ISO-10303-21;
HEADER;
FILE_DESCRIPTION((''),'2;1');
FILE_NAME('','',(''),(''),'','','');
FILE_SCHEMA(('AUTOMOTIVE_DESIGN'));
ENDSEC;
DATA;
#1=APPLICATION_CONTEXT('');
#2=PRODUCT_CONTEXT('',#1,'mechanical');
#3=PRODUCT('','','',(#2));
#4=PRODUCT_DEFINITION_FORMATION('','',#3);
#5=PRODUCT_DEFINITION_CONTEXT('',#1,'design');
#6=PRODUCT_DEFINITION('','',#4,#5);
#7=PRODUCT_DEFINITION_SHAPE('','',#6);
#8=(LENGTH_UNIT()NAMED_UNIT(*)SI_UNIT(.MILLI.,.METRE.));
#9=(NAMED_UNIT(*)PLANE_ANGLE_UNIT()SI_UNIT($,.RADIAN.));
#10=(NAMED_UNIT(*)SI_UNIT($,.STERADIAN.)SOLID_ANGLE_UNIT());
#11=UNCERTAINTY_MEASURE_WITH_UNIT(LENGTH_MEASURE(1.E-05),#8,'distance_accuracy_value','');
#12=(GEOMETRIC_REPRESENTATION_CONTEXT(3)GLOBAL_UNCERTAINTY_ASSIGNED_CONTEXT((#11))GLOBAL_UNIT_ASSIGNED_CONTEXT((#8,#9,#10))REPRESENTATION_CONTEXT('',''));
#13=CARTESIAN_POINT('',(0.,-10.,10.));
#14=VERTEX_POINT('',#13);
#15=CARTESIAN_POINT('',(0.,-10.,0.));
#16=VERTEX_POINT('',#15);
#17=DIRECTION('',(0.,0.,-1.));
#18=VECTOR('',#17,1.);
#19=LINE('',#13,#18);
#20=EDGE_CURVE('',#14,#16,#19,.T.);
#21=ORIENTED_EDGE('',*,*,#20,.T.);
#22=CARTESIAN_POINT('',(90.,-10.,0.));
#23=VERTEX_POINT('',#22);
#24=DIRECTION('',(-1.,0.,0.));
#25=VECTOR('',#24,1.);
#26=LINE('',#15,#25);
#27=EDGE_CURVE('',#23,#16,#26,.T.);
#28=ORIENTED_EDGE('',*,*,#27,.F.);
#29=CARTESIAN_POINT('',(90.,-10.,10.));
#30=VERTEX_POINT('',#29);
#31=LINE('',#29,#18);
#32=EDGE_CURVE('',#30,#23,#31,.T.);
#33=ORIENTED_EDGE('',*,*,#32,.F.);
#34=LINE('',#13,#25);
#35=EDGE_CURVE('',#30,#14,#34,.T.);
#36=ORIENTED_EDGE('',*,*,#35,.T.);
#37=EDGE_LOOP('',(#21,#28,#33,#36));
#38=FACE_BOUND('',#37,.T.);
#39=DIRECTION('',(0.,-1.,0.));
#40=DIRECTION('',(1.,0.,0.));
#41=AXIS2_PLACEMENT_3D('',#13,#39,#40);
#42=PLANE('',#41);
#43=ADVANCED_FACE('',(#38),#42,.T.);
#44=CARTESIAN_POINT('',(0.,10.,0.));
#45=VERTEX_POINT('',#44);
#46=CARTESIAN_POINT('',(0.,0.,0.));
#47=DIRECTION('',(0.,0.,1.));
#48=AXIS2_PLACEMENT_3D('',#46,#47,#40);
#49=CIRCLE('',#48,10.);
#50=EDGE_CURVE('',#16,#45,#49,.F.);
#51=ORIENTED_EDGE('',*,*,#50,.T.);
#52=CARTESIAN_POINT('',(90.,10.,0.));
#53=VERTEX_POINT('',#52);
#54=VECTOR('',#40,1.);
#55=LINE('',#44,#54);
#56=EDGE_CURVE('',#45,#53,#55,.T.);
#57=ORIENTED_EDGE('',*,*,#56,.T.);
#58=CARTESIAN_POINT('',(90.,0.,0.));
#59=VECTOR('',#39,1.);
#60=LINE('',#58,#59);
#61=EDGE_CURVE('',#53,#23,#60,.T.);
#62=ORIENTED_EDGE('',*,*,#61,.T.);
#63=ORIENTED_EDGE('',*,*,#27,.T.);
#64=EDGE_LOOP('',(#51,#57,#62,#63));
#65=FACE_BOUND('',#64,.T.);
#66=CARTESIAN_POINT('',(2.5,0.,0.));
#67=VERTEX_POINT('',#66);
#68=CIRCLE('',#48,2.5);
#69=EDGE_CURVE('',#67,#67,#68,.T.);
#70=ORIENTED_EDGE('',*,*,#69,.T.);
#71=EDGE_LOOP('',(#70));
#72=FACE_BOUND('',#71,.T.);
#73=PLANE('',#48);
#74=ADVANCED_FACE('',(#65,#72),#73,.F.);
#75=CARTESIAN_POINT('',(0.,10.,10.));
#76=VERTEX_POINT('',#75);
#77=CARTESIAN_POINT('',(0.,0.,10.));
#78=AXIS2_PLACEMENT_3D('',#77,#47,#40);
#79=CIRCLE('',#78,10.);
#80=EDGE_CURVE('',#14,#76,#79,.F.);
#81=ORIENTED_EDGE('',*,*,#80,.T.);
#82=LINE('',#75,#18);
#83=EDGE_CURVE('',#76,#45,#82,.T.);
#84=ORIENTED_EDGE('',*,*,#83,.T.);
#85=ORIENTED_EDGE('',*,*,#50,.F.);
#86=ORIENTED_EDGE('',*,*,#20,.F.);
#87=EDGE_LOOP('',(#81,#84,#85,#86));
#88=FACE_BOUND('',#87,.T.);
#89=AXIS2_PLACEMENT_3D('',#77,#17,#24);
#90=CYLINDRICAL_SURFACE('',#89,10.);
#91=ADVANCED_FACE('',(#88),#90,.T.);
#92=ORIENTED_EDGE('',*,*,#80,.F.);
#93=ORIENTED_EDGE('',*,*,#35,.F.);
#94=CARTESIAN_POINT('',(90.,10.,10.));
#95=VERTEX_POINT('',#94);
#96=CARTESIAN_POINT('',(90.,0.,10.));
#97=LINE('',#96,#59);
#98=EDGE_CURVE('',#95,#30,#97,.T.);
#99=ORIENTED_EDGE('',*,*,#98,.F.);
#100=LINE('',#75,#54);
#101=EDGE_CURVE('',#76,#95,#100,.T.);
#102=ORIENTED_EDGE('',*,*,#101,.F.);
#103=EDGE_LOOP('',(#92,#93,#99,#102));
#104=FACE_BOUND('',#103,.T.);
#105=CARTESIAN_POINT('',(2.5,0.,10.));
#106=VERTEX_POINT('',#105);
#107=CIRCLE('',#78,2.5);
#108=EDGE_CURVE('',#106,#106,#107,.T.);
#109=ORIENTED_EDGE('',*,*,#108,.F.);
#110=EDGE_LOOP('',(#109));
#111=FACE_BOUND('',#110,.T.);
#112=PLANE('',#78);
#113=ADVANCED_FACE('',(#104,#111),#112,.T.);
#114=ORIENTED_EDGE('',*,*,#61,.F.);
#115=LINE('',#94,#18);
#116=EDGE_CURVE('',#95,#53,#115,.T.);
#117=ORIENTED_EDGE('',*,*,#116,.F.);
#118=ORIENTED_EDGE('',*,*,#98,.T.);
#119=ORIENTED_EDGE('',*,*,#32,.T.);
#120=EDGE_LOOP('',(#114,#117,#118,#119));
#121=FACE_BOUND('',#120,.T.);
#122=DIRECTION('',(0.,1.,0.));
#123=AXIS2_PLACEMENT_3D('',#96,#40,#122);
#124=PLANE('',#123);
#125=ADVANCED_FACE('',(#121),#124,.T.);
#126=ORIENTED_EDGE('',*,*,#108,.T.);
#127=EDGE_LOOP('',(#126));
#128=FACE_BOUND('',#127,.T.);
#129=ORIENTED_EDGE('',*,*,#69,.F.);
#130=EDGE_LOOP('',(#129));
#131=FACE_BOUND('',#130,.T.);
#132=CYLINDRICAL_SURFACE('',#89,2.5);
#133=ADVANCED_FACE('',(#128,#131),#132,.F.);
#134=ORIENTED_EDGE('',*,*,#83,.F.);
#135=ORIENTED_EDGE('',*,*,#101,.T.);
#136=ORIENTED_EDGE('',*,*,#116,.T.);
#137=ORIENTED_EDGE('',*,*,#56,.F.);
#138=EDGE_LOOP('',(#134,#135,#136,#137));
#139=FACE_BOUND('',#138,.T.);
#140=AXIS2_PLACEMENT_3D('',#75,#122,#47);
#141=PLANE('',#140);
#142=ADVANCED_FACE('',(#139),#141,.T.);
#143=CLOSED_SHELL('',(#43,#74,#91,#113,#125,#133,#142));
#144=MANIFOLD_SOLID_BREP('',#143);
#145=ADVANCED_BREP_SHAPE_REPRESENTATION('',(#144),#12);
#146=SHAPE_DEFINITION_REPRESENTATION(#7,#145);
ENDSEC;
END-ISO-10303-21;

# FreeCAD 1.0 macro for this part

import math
import FreeCAD as App
import Part
import Sketcher
from FreeCAD import Vector
Q = App.Units.Quantity

doc = App.newDocument("Part")
body = doc.addObject("PartDesign::Body", "Body")

sketch1 = body.newObject("Sketcher::SketchObject", "Sketch")
sketch1.AttachmentSupport = (doc.getObject("XY_Plane"), [""])
sketch1.MapMode = "FlatFace"
sketch1.addGeometry(Part.LineSegment(Vector(90, 10, 0), Vector(0, 10, 0)), False)
sketch1.addGeometry(Part.ArcOfCircle(Part.Circle(Vector(0, 0, 0), Vector(0, 0, 1), 10), math.radians(90), math.radians(270)), False)
sketch1.addGeometry(Part.LineSegment(Vector(0, -10, 0), Vector(90, -10, 0)), False)
sketch1.addGeometry(Part.LineSegment(Vector(90, -10, 0), Vector(90, 10, 0)), False)
sketch1.addGeometry(Part.Circle(Vector(0, 0, 0), Vector(0, 0, 1), 2.5), False)
sketch1.addConstraint(Sketcher.Constraint("Tangent", 0, 2, 1, 1))
sketch1.addConstraint(Sketcher.Constraint("Tangent", 1, 2, 2, 1))
sketch1.addConstraint(Sketcher.Constraint("Coincident", 2, 2, 3, 1))
sketch1.addConstraint(Sketcher.Constraint("Coincident", 3, 2, 0, 1))
sketch1.addConstraint(Sketcher.Constraint("Horizontal", 0))
sketch1.addConstraint(Sketcher.Constraint("Horizontal", 2))
sketch1.addConstraint(Sketcher.Constraint("Vertical", 3))
sketch1.addConstraint(Sketcher.Constraint("Coincident", 1, 3, -1, 1))
sketch1.addConstraint(Sketcher.Constraint("Coincident", 4, 3, -1, 1))
sketch1.addConstraint(Sketcher.Constraint("Diameter", 4, Q("5 mm")))
sketch1.addConstraint(Sketcher.Constraint("Radius", 1, Q("10 mm")))
sketch1.addConstraint(Sketcher.Constraint("DistanceX", 0, 2, 0, 1, Q("90 mm")))
pad1 = body.newObject("PartDesign::Pad", "Pad")
pad1.Profile = sketch1
pad1.Length = 10

doc.recompute()
